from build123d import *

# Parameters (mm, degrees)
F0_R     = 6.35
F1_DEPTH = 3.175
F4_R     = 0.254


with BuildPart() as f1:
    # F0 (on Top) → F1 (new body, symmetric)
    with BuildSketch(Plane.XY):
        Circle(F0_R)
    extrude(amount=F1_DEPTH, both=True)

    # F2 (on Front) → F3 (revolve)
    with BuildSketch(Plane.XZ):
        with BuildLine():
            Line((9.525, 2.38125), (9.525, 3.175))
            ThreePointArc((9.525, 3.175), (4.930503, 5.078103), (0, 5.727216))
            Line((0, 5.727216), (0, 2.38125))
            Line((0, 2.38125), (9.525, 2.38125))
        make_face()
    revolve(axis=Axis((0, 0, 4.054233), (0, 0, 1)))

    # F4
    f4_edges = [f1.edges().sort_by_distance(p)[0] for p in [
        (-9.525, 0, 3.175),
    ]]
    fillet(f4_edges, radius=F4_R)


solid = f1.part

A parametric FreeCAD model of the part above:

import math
import FreeCAD as App
import Part
import Sketcher
Q = App.Units.Quantity


def edges_at(feature, points):
    """Names of the edges that pass closest to the given points."""
    edges = feature.Shape.Edges
    near = lambda p: min(range(len(edges)), key=lambda i: edges[i].distToShape(Part.Vertex(*p))[0])
    return sorted({f"Edge{near(p) + 1}" for p in points})

doc = App.newDocument("Part")
params = doc.addObject("Spreadsheet::Sheet", "Params")
for row, (alias, value) in enumerate([
    ("sketch1_diameter", "0.5 in"),
    ("pad1_length", "0.25 in"),
    ("sketch2_radius", "0.75 in"),
    ("sketch2_width", "0.375 in"),
    ("sketch2_height", "0.03125 in"),
    ("revolution_angle", "360 deg"),
    ("fillet_radius", "0.01 in"),
], start=1):
    params.set(f"A{row}", alias)
    params.set(f"B{row}", "=" + value)
    params.setAlias(f"B{row}", alias)

body = doc.addObject("PartDesign::Body", "Body")

# Sketch on XY plane
sketch1 = body.newObject("Sketcher::SketchObject", "Sketch")
sketch1.AttachmentSupport = (doc.getObject("XY_Plane"), [""])
sketch1.MapMode = "FlatFace"
sketch1.addGeometry(Part.Circle(App.Vector(0, 0, 0), App.Vector(0, 0, 1), 6), False)
sketch1.addConstraint(Sketcher.Constraint("Coincident", 0, 3, -1, 1))
sketch1.addConstraint(Sketcher.Constraint("Diameter", 0, Q("0.5 in")))
sketch1.setExpression("Constraints[1]", "Params.sketch1_diameter")
pad1 = body.newObject("PartDesign::Pad", "Pad")
pad1.Profile = sketch1
pad1.setExpression("Length", "Params.pad1_length")
pad1.Midplane = True

# Sketch on XZ plane
sketch2 = body.newObject("Sketcher::SketchObject", "Sketch001")
sketch2.AttachmentSupport = (doc.getObject("XZ_Plane"), [""])
sketch2.MapMode = "FlatFace"
sketch2.addGeometry(Part.LineSegment(App.Vector(9.5, 2.4, 0), App.Vector(9.5, 3.2, 0)), False)
sketch2.addGeometry(Part.ArcOfCircle(Part.Circle(App.Vector(0, -13.3, 0), App.Vector(0, 0, 1), 19), math.radians(60), math.radians(90)), False)
sketch2.addGeometry(Part.LineSegment(App.Vector(0, 5.7, 0), App.Vector(0, 2.4, 0)), False)
sketch2.addGeometry(Part.LineSegment(App.Vector(0, 2.4, 0), App.Vector(9.5, 2.4, 0)), False)
sketch2.addConstraint(Sketcher.Constraint("Coincident", 0, 2, 1, 1))
sketch2.addConstraint(Sketcher.Constraint("Coincident", 1, 2, 2, 1))
sketch2.addConstraint(Sketcher.Constraint("Coincident", 2, 2, 3, 1))
sketch2.addConstraint(Sketcher.Constraint("Coincident", 3, 2, 0, 1))
sketch2.addConstraint(Sketcher.Constraint("Vertical", 0))
sketch2.addConstraint(Sketcher.Constraint("Vertical", 2))
sketch2.addConstraint(Sketcher.Constraint("Horizontal", 3))
sketch2.addConstraint(Sketcher.Constraint("PointOnObject", 1, 3, -2))
sketch2.addConstraint(Sketcher.Constraint("PointOnObject", 1, 2, -2))
sketch2.addConstraint(Sketcher.Constraint("Radius", 1, Q("0.75 in")))
sketch2.addConstraint(Sketcher.Constraint("DistanceX", 3, 1, 3, 2, Q("0.375 in")))
sketch2.addConstraint(Sketcher.Constraint("DistanceY", 0, 1, 0, 2, Q("0.03125 in")))
sketch2.addConstraint(Sketcher.Constraint("DistanceY", -1, 1, 0, 2, Q("0.125 in")))
sketch2.setExpression("Constraints[9]", "Params.sketch2_radius")
sketch2.setExpression("Constraints[10]", "Params.sketch2_width")
sketch2.setExpression("Constraints[11]", "Params.sketch2_height")
revolution = body.newObject("PartDesign::Revolution", "Revolution")
revolution.Profile = sketch2
revolution.ReferenceAxis = (sketch2, ["V_Axis"])
revolution.setExpression("Angle", "Params.revolution_angle")
doc.recompute()

fillet = body.newObject("PartDesign::Fillet", "Fillet")
fillet.Base = (revolution, edges_at(revolution, [(-9.525, 0, 3.175)]))
fillet.setExpression("Radius", "Params.fillet_radius")

doc.recompute()
